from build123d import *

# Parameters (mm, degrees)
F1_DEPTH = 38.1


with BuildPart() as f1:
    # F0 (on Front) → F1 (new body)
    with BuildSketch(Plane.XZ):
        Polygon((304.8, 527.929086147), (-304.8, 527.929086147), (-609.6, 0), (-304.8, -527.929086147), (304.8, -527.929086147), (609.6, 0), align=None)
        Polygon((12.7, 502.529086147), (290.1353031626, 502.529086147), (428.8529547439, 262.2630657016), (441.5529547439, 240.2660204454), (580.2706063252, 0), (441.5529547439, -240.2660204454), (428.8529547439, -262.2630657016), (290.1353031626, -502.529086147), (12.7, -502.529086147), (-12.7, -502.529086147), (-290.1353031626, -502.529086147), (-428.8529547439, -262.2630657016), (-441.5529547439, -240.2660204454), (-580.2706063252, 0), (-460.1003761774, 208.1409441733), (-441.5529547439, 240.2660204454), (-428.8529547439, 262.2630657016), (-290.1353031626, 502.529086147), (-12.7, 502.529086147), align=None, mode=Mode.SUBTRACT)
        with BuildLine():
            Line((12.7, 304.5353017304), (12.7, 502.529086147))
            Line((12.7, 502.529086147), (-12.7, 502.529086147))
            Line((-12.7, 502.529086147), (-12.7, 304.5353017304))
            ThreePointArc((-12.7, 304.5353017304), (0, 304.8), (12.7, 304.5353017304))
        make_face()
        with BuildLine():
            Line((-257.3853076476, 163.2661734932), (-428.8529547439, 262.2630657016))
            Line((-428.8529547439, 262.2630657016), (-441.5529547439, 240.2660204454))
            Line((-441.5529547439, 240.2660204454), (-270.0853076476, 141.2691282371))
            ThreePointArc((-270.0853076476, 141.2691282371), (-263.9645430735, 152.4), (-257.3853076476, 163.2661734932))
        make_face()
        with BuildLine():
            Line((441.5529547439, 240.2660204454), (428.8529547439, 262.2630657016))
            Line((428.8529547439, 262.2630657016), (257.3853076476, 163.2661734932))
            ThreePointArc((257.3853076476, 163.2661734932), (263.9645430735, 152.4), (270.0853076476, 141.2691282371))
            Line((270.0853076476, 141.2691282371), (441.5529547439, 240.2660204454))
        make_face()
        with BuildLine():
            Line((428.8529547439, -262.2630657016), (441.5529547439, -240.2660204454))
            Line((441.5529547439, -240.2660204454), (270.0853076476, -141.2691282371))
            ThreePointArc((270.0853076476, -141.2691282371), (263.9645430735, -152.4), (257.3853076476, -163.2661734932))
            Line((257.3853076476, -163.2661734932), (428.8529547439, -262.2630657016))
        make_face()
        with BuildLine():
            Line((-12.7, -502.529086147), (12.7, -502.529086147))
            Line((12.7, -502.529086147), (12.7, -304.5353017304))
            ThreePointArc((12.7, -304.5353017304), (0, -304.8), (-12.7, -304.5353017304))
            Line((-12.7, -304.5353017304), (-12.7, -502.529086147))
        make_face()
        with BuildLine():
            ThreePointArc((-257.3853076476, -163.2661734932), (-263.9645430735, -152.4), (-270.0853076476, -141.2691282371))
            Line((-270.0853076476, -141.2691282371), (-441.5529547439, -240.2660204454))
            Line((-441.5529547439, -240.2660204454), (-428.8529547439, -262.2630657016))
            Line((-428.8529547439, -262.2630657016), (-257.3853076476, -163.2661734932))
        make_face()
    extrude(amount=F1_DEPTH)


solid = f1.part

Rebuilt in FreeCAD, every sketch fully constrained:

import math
import FreeCAD as App
import Part
import Sketcher
Q = App.Units.Quantity


def add_polygon(sketch, points):
    """Adds a closed chain of lines whose ends are joined by coincident constraints."""
    first, n = sketch.GeometryCount, len(points)
    for a, b in zip(points, points[1:] + points[:1]):
        sketch.addGeometry(Part.LineSegment(App.Vector(*a, 0), App.Vector(*b, 0)), False)
    for i in range(n):
        sketch.addConstraint(Sketcher.Constraint("Coincident", first + i, 2, first + (i + 1) % n, 1))

doc = App.newDocument("Part")
params = doc.addObject("Spreadsheet::Sheet", "Params")
for row, (alias, value) in enumerate([
    ("sketch1_radius", "12 in"),
    ("sketch1_width", "24 in"),
    ("sketch1_length", "24 in"),
    ("pad1_length", "1.5 in"),
], start=1):
    params.set(f"A{row}", alias)
    params.set(f"B{row}", "=" + value)
    params.setAlias(f"B{row}", alias)

body = doc.addObject("PartDesign::Body", "Body")

# Sketch on XZ plane
sketch1 = body.newObject("Sketcher::SketchObject", "Sketch")
sketch1.AttachmentSupport = (doc.getObject("XZ_Plane"), [""])
sketch1.MapMode = "FlatFace"
add_polygon(sketch1, [(304.8, 527.929086), (-304.8, 527.929086), (-609.6, 0), (-304.8, -527.929086), (304.8, -527.929086), (609.6, 0)])  # lines 0-5
sketch1.addGeometry(Part.LineSegment(App.Vector(-290.135303, 502.529086, 0), App.Vector(-12.7, 502.529086, 0)), False)  # 6
sketch1.addGeometry(Part.LineSegment(App.Vector(-12.7, 502.529086, 0), App.Vector(-12.7, 304.535302, 0)), False)  # 7
sketch1.addGeometry(Part.ArcOfCircle(Part.Circle(App.Vector(0, 0, 0), App.Vector(0, 0, 1), 304.8), math.radians(87.611985), math.radians(92.388015)), False)  # 8
sketch1.addGeometry(Part.LineSegment(App.Vector(12.7, 304.535302, 0), App.Vector(12.7, 502.529086, 0)), False)  # 9
sketch1.addGeometry(Part.LineSegment(App.Vector(12.7, 502.529086, 0), App.Vector(290.135303, 502.529086, 0)), False)  # 10
sketch1.addGeometry(Part.LineSegment(App.Vector(290.135303, 502.529086, 0), App.Vector(428.852955, 262.263066, 0)), False)  # 11
sketch1.addGeometry(Part.LineSegment(App.Vector(428.852955, 262.263066, 0), App.Vector(257.385308, 163.266173, 0)), False)  # 12
sketch1.addGeometry(Part.ArcOfCircle(Part.Circle(App.Vector(0, 0, 0), App.Vector(0, 0, 1), 304.8), math.radians(27.611985), math.radians(32.388015)), False)  # 13
sketch1.addGeometry(Part.LineSegment(App.Vector(270.085308, 141.269128, 0), App.Vector(441.552955, 240.26602, 0)), False)  # 14
sketch1.addGeometry(Part.LineSegment(App.Vector(441.552955, 240.26602, 0), App.Vector(580.270606, 0, 0)), False)  # 15
sketch1.addGeometry(Part.LineSegment(App.Vector(580.270606, 0, 0), App.Vector(441.552955, -240.26602, 0)), False)  # 16
sketch1.addGeometry(Part.LineSegment(App.Vector(441.552955, -240.26602, 0), App.Vector(270.085308, -141.269128, 0)), False)  # 17
sketch1.addGeometry(Part.ArcOfCircle(Part.Circle(App.Vector(0, 0, 0), App.Vector(0, 0, 1), 304.8), math.radians(-32.388015), math.radians(-27.611985)), False)  # 18
sketch1.addGeometry(Part.LineSegment(App.Vector(257.385308, -163.266173, 0), App.Vector(428.852955, -262.263066, 0)), False)  # 19
sketch1.addGeometry(Part.LineSegment(App.Vector(428.852955, -262.263066, 0), App.Vector(290.135303, -502.529086, 0)), False)  # 20
sketch1.addGeometry(Part.LineSegment(App.Vector(290.135303, -502.529086, 0), App.Vector(12.7, -502.529086, 0)), False)  # 21
sketch1.addGeometry(Part.LineSegment(App.Vector(12.7, -502.529086, 0), App.Vector(12.7, -304.535302, 0)), False)  # 22
sketch1.addGeometry(Part.ArcOfCircle(Part.Circle(App.Vector(0, 0, 0), App.Vector(0, 0, 1), 304.8), math.radians(-92.388015), math.radians(-87.611985)), False)  # 23
sketch1.addGeometry(Part.LineSegment(App.Vector(-12.7, -304.535302, 0), App.Vector(-12.7, -502.529086, 0)), False)  # 24
sketch1.addGeometry(Part.LineSegment(App.Vector(-12.7, -502.529086, 0), App.Vector(-290.135303, -502.529086, 0)), False)  # 25
sketch1.addGeometry(Part.LineSegment(App.Vector(-290.135303, -502.529086, 0), App.Vector(-428.852955, -262.263066, 0)), False)  # 26
sketch1.addGeometry(Part.LineSegment(App.Vector(-428.852955, -262.263066, 0), App.Vector(-257.385308, -163.266173, 0)), False)  # 27
sketch1.addGeometry(Part.ArcOfCircle(Part.Circle(App.Vector(0, 0, 0), App.Vector(0, 0, 1), 304.8), math.radians(-152.388015), math.radians(-147.611985)), False)  # 28
sketch1.addGeometry(Part.LineSegment(App.Vector(-270.085308, -141.269128, 0), App.Vector(-441.552955, -240.26602, 0)), False)  # 29
sketch1.addGeometry(Part.LineSegment(App.Vector(-441.552955, -240.26602, 0), App.Vector(-580.270606, 0, 0)), False)  # 30
sketch1.addGeometry(Part.LineSegment(App.Vector(-580.270606, 0, 0), App.Vector(-460.100376, 208.140944, 0)), False)  # 31
sketch1.addGeometry(Part.LineSegment(App.Vector(-460.100376, 208.140944, 0), App.Vector(-441.552955, 240.26602, 0)), False)  # 32
sketch1.addGeometry(Part.LineSegment(App.Vector(-441.552955, 240.26602, 0), App.Vector(-270.085308, 141.269128, 0)), False)  # 33
sketch1.addGeometry(Part.ArcOfCircle(Part.Circle(App.Vector(0, 0, 0), App.Vector(0, 0, 1), 304.8), math.radians(147.611985), math.radians(152.388015)), False)  # 34
sketch1.addGeometry(Part.LineSegment(App.Vector(-257.385308, 163.266173, 0), App.Vector(-428.852955, 262.263066, 0)), False)  # 35
sketch1.addGeometry(Part.LineSegment(App.Vector(-428.852955, 262.263066, 0), App.Vector(-290.135303, 502.529086, 0)), False)  # 36
sketch1.addConstraint(Sketcher.Constraint("Coincident", 6, 2, 7, 1))
sketch1.addConstraint(Sketcher.Constraint("Coincident", 7, 2, 8, 2))
sketch1.addConstraint(Sketcher.Constraint("Coincident", 8, 1, 9, 1))
sketch1.addConstraint(Sketcher.Constraint("Coincident", 9, 2, 10, 1))
sketch1.addConstraint(Sketcher.Constraint("Coincident", 10, 2, 11, 1))
sketch1.addConstraint(Sketcher.Constraint("Coincident", 11, 2, 12, 1))
sketch1.addConstraint(Sketcher.Constraint("Coincident", 12, 2, 13, 2))
sketch1.addConstraint(Sketcher.Constraint("Coincident", 13, 1, 14, 1))
sketch1.addConstraint(Sketcher.Constraint("Coincident", 14, 2, 15, 1))
sketch1.addConstraint(Sketcher.Constraint("Coincident", 15, 2, 16, 1))
sketch1.addConstraint(Sketcher.Constraint("Coincident", 16, 2, 17, 1))
sketch1.addConstraint(Sketcher.Constraint("Coincident", 17, 2, 18, 2))
sketch1.addConstraint(Sketcher.Constraint("Coincident", 18, 1, 19, 1))
sketch1.addConstraint(Sketcher.Constraint("Coincident", 19, 2, 20, 1))
sketch1.addConstraint(Sketcher.Constraint("Coincident", 20, 2, 21, 1))
sketch1.addConstraint(Sketcher.Constraint("Coincident", 21, 2, 22, 1))
sketch1.addConstraint(Sketcher.Constraint("Coincident", 22, 2, 23, 2))
sketch1.addConstraint(Sketcher.Constraint("Coincident", 23, 1, 24, 1))
sketch1.addConstraint(Sketcher.Constraint("Coincident", 24, 2, 25, 1))
sketch1.addConstraint(Sketcher.Constraint("Coincident", 25, 2, 26, 1))
sketch1.addConstraint(Sketcher.Constraint("Coincident", 26, 2, 27, 1))
sketch1.addConstraint(Sketcher.Constraint("Coincident", 27, 2, 28, 2))
sketch1.addConstraint(Sketcher.Constraint("Coincident", 28, 1, 29, 1))
sketch1.addConstraint(Sketcher.Constraint("Coincident", 29, 2, 30, 1))
sketch1.addConstraint(Sketcher.Constraint("Coincident", 30, 2, 31, 1))
sketch1.addConstraint(Sketcher.Constraint("Coincident", 31, 2, 32, 1))
sketch1.addConstraint(Sketcher.Constraint("Coincident", 32, 2, 33, 1))
sketch1.addConstraint(Sketcher.Constraint("Coincident", 33, 2, 34, 2))
sketch1.addConstraint(Sketcher.Constraint("Coincident", 34, 1, 35, 1))
sketch1.addConstraint(Sketcher.Constraint("Coincident", 35, 2, 36, 1))
sketch1.addConstraint(Sketcher.Constraint("Coincident", 36, 2, 6, 1))
sketch1.addConstraint(Sketcher.Constraint("Horizontal", 0))
sketch1.addConstraint(Sketcher.Constraint("Horizontal", 3))
sketch1.addConstraint(Sketcher.Constraint("Horizontal", 6))
sketch1.addConstraint(Sketcher.Constraint("Vertical", 7))
sketch1.addConstraint(Sketcher.Constraint("Vertical", 9))
sketch1.addConstraint(Sketcher.Constraint("Horizontal", 10))
sketch1.addConstraint(Sketcher.Constraint("Horizontal", 21))
sketch1.addConstraint(Sketcher.Constraint("Vertical", 22))
sketch1.addConstraint(Sketcher.Constraint("Vertical", 24))
sketch1.addConstraint(Sketcher.Constraint("Horizontal", 25))
sketch1.addConstraint(Sketcher.Constraint("Coincident", 8, 3, -1, 1))
sketch1.addConstraint(Sketcher.Constraint("Coincident", 13, 3, -1, 1))
sketch1.addConstraint(Sketcher.Constraint("Coincident", 18, 3, -1, 1))
sketch1.addConstraint(Sketcher.Constraint("Coincident", 23, 3, -1, 1))
sketch1.addConstraint(Sketcher.Constraint("Coincident", 28, 3, -1, 1))
sketch1.addConstraint(Sketcher.Constraint("Coincident", 34, 3, -1, 1))
sketch1.addConstraint(Sketcher.Constraint("Equal", 8, 13))
sketch1.addConstraint(Sketcher.Constraint("Equal", 13, 18))
sketch1.addConstraint(Sketcher.Constraint("Equal", 18, 23))
sketch1.addConstraint(Sketcher.Constraint("Equal", 23, 28))
sketch1.addConstraint(Sketcher.Constraint("Equal", 28, 34))
sketch1.addConstraint(Sketcher.Constraint("Symmetric", 0, 2, 3, 2, -1, 1))
sketch1.addConstraint(Sketcher.Constraint("Symmetric", 1, 2, 4, 2, -1, 1))
sketch1.addConstraint(Sketcher.Constraint("Symmetric", 6, 2, 21, 2, -1, 1))
sketch1.addConstraint(Sketcher.Constraint("Symmetric", 9, 2, 24, 2, -1, 1))
sketch1.addConstraint(Sketcher.Constraint("Symmetric", 11, 2, 26, 2, -1, 1))
sketch1.addConstraint(Sketcher.Constraint("Symmetric", 14, 2, 29, 2, -1, 1))
sketch1.addConstraint(Sketcher.Constraint("Symmetric", 15, 2, 30, 2, -1, 1))
sketch1.addConstraint(Sketcher.Constraint("Symmetric", 16, 2, 32, 2, -1, 1))
sketch1.addConstraint(Sketcher.Constraint("Symmetric", 19, 2, 35, 2, -1, 1))
sketch1.addConstraint(Sketcher.Constraint("Symmetric", 6, 2, 9, 2, -2))
sketch1.addConstraint(Sketcher.Constraint("Symmetric", 19, 2, 26, 2, -2))
sketch1.addConstraint(Sketcher.Constraint("Symmetric", 16, 2, 29, 2, -2))
sketch1.addConstraint(Sketcher.Constraint("PointOnObject", 1, 2, -1))
sketch1.addConstraint(Sketcher.Constraint("PointOnObject", 15, 2, -1))
sketch1.addConstraint(Sketcher.Constraint("Parallel", 2, 5))
sketch1.addConstraint(Sketcher.Constraint("Parallel", 5, 11))
sketch1.addConstraint(Sketcher.Constraint("Perpendicular", 11, 12))
sketch1.addConstraint(Sketcher.Constraint("Parallel", 12, 14))
sketch1.addConstraint(Sketcher.Constraint("Perpendicular", 14, 15))
sketch1.addConstraint(Sketcher.Constraint("Parallel", 4, 16))
sketch1.addConstraint(Sketcher.Constraint("Perpendicular", 16, 17))
sketch1.addConstraint(Sketcher.Constraint("Parallel", 17, 19))
sketch1.addConstraint(Sketcher.Constraint("Perpendicular", 19, 20))
sketch1.addConstraint(Sketcher.Constraint("Parallel", 15, 26))
sketch1.addConstraint(Sketcher.Constraint("Perpendicular", 26, 27))
sketch1.addConstraint(Sketcher.Constraint("Parallel", 27, 29))
sketch1.addConstraint(Sketcher.Constraint("Parallel", 20, 31))
sketch1.addConstraint(Sketcher.Constraint("Perpendicular", 32, 33))
sketch1.addConstraint(Sketcher.Constraint("Parallel", 33, 35))
sketch1.addConstraint(Sketcher.Constraint("Perpendicular", 35, 36))
sketch1.addConstraint(Sketcher.Constraint("Equal", 12, 14))
sketch1.addConstraint(Sketcher.Constraint("Equal", 11, 15))
sketch1.addConstraint(Sketcher.Constraint("Radius", 8, Q("12 in")))
sketch1.addConstraint(Sketcher.Constraint("DistanceX", 0, 2, 0, 1, Q("24 in")))
sketch1.addConstraint(Sketcher.Constraint("Distance", 1, Q("24 in")))
sketch1.addConstraint(Sketcher.Constraint("DistanceX", 1, 2, -1, 1, Q("24 in")))
sketch1.addConstraint(Sketcher.Constraint("DistanceY", 6, 2, 0, 2, Q("1 in")))
sketch1.addConstraint(Sketcher.Constraint("DistanceX", 6, 2, 9, 2, Q("1 in")))
sketch1.addConstraint(Sketcher.Constraint("DistanceX", 11, 2, 14, 2, Q("0.5 in")))
sketch1.addConstraint(Sketcher.Constraint("DistanceX", 12, 2, 15, 2, Q("322.885299 mm")))
sketch1.addConstraint(Sketcher.Constraint("Distance", 31, Q("240.34046 mm")))
sketch1.setExpression("Constraints[90]", "Params.sketch1_radius")
sketch1.setExpression("Constraints[91]", "Params.sketch1_width")
sketch1.setExpression("Constraints[92]", "Params.sketch1_length")
pad1 = body.newObject("PartDesign::Pad", "Pad")
pad1.Profile = sketch1
pad1.setExpression("Length", "Params.pad1_length")

doc.recompute()
